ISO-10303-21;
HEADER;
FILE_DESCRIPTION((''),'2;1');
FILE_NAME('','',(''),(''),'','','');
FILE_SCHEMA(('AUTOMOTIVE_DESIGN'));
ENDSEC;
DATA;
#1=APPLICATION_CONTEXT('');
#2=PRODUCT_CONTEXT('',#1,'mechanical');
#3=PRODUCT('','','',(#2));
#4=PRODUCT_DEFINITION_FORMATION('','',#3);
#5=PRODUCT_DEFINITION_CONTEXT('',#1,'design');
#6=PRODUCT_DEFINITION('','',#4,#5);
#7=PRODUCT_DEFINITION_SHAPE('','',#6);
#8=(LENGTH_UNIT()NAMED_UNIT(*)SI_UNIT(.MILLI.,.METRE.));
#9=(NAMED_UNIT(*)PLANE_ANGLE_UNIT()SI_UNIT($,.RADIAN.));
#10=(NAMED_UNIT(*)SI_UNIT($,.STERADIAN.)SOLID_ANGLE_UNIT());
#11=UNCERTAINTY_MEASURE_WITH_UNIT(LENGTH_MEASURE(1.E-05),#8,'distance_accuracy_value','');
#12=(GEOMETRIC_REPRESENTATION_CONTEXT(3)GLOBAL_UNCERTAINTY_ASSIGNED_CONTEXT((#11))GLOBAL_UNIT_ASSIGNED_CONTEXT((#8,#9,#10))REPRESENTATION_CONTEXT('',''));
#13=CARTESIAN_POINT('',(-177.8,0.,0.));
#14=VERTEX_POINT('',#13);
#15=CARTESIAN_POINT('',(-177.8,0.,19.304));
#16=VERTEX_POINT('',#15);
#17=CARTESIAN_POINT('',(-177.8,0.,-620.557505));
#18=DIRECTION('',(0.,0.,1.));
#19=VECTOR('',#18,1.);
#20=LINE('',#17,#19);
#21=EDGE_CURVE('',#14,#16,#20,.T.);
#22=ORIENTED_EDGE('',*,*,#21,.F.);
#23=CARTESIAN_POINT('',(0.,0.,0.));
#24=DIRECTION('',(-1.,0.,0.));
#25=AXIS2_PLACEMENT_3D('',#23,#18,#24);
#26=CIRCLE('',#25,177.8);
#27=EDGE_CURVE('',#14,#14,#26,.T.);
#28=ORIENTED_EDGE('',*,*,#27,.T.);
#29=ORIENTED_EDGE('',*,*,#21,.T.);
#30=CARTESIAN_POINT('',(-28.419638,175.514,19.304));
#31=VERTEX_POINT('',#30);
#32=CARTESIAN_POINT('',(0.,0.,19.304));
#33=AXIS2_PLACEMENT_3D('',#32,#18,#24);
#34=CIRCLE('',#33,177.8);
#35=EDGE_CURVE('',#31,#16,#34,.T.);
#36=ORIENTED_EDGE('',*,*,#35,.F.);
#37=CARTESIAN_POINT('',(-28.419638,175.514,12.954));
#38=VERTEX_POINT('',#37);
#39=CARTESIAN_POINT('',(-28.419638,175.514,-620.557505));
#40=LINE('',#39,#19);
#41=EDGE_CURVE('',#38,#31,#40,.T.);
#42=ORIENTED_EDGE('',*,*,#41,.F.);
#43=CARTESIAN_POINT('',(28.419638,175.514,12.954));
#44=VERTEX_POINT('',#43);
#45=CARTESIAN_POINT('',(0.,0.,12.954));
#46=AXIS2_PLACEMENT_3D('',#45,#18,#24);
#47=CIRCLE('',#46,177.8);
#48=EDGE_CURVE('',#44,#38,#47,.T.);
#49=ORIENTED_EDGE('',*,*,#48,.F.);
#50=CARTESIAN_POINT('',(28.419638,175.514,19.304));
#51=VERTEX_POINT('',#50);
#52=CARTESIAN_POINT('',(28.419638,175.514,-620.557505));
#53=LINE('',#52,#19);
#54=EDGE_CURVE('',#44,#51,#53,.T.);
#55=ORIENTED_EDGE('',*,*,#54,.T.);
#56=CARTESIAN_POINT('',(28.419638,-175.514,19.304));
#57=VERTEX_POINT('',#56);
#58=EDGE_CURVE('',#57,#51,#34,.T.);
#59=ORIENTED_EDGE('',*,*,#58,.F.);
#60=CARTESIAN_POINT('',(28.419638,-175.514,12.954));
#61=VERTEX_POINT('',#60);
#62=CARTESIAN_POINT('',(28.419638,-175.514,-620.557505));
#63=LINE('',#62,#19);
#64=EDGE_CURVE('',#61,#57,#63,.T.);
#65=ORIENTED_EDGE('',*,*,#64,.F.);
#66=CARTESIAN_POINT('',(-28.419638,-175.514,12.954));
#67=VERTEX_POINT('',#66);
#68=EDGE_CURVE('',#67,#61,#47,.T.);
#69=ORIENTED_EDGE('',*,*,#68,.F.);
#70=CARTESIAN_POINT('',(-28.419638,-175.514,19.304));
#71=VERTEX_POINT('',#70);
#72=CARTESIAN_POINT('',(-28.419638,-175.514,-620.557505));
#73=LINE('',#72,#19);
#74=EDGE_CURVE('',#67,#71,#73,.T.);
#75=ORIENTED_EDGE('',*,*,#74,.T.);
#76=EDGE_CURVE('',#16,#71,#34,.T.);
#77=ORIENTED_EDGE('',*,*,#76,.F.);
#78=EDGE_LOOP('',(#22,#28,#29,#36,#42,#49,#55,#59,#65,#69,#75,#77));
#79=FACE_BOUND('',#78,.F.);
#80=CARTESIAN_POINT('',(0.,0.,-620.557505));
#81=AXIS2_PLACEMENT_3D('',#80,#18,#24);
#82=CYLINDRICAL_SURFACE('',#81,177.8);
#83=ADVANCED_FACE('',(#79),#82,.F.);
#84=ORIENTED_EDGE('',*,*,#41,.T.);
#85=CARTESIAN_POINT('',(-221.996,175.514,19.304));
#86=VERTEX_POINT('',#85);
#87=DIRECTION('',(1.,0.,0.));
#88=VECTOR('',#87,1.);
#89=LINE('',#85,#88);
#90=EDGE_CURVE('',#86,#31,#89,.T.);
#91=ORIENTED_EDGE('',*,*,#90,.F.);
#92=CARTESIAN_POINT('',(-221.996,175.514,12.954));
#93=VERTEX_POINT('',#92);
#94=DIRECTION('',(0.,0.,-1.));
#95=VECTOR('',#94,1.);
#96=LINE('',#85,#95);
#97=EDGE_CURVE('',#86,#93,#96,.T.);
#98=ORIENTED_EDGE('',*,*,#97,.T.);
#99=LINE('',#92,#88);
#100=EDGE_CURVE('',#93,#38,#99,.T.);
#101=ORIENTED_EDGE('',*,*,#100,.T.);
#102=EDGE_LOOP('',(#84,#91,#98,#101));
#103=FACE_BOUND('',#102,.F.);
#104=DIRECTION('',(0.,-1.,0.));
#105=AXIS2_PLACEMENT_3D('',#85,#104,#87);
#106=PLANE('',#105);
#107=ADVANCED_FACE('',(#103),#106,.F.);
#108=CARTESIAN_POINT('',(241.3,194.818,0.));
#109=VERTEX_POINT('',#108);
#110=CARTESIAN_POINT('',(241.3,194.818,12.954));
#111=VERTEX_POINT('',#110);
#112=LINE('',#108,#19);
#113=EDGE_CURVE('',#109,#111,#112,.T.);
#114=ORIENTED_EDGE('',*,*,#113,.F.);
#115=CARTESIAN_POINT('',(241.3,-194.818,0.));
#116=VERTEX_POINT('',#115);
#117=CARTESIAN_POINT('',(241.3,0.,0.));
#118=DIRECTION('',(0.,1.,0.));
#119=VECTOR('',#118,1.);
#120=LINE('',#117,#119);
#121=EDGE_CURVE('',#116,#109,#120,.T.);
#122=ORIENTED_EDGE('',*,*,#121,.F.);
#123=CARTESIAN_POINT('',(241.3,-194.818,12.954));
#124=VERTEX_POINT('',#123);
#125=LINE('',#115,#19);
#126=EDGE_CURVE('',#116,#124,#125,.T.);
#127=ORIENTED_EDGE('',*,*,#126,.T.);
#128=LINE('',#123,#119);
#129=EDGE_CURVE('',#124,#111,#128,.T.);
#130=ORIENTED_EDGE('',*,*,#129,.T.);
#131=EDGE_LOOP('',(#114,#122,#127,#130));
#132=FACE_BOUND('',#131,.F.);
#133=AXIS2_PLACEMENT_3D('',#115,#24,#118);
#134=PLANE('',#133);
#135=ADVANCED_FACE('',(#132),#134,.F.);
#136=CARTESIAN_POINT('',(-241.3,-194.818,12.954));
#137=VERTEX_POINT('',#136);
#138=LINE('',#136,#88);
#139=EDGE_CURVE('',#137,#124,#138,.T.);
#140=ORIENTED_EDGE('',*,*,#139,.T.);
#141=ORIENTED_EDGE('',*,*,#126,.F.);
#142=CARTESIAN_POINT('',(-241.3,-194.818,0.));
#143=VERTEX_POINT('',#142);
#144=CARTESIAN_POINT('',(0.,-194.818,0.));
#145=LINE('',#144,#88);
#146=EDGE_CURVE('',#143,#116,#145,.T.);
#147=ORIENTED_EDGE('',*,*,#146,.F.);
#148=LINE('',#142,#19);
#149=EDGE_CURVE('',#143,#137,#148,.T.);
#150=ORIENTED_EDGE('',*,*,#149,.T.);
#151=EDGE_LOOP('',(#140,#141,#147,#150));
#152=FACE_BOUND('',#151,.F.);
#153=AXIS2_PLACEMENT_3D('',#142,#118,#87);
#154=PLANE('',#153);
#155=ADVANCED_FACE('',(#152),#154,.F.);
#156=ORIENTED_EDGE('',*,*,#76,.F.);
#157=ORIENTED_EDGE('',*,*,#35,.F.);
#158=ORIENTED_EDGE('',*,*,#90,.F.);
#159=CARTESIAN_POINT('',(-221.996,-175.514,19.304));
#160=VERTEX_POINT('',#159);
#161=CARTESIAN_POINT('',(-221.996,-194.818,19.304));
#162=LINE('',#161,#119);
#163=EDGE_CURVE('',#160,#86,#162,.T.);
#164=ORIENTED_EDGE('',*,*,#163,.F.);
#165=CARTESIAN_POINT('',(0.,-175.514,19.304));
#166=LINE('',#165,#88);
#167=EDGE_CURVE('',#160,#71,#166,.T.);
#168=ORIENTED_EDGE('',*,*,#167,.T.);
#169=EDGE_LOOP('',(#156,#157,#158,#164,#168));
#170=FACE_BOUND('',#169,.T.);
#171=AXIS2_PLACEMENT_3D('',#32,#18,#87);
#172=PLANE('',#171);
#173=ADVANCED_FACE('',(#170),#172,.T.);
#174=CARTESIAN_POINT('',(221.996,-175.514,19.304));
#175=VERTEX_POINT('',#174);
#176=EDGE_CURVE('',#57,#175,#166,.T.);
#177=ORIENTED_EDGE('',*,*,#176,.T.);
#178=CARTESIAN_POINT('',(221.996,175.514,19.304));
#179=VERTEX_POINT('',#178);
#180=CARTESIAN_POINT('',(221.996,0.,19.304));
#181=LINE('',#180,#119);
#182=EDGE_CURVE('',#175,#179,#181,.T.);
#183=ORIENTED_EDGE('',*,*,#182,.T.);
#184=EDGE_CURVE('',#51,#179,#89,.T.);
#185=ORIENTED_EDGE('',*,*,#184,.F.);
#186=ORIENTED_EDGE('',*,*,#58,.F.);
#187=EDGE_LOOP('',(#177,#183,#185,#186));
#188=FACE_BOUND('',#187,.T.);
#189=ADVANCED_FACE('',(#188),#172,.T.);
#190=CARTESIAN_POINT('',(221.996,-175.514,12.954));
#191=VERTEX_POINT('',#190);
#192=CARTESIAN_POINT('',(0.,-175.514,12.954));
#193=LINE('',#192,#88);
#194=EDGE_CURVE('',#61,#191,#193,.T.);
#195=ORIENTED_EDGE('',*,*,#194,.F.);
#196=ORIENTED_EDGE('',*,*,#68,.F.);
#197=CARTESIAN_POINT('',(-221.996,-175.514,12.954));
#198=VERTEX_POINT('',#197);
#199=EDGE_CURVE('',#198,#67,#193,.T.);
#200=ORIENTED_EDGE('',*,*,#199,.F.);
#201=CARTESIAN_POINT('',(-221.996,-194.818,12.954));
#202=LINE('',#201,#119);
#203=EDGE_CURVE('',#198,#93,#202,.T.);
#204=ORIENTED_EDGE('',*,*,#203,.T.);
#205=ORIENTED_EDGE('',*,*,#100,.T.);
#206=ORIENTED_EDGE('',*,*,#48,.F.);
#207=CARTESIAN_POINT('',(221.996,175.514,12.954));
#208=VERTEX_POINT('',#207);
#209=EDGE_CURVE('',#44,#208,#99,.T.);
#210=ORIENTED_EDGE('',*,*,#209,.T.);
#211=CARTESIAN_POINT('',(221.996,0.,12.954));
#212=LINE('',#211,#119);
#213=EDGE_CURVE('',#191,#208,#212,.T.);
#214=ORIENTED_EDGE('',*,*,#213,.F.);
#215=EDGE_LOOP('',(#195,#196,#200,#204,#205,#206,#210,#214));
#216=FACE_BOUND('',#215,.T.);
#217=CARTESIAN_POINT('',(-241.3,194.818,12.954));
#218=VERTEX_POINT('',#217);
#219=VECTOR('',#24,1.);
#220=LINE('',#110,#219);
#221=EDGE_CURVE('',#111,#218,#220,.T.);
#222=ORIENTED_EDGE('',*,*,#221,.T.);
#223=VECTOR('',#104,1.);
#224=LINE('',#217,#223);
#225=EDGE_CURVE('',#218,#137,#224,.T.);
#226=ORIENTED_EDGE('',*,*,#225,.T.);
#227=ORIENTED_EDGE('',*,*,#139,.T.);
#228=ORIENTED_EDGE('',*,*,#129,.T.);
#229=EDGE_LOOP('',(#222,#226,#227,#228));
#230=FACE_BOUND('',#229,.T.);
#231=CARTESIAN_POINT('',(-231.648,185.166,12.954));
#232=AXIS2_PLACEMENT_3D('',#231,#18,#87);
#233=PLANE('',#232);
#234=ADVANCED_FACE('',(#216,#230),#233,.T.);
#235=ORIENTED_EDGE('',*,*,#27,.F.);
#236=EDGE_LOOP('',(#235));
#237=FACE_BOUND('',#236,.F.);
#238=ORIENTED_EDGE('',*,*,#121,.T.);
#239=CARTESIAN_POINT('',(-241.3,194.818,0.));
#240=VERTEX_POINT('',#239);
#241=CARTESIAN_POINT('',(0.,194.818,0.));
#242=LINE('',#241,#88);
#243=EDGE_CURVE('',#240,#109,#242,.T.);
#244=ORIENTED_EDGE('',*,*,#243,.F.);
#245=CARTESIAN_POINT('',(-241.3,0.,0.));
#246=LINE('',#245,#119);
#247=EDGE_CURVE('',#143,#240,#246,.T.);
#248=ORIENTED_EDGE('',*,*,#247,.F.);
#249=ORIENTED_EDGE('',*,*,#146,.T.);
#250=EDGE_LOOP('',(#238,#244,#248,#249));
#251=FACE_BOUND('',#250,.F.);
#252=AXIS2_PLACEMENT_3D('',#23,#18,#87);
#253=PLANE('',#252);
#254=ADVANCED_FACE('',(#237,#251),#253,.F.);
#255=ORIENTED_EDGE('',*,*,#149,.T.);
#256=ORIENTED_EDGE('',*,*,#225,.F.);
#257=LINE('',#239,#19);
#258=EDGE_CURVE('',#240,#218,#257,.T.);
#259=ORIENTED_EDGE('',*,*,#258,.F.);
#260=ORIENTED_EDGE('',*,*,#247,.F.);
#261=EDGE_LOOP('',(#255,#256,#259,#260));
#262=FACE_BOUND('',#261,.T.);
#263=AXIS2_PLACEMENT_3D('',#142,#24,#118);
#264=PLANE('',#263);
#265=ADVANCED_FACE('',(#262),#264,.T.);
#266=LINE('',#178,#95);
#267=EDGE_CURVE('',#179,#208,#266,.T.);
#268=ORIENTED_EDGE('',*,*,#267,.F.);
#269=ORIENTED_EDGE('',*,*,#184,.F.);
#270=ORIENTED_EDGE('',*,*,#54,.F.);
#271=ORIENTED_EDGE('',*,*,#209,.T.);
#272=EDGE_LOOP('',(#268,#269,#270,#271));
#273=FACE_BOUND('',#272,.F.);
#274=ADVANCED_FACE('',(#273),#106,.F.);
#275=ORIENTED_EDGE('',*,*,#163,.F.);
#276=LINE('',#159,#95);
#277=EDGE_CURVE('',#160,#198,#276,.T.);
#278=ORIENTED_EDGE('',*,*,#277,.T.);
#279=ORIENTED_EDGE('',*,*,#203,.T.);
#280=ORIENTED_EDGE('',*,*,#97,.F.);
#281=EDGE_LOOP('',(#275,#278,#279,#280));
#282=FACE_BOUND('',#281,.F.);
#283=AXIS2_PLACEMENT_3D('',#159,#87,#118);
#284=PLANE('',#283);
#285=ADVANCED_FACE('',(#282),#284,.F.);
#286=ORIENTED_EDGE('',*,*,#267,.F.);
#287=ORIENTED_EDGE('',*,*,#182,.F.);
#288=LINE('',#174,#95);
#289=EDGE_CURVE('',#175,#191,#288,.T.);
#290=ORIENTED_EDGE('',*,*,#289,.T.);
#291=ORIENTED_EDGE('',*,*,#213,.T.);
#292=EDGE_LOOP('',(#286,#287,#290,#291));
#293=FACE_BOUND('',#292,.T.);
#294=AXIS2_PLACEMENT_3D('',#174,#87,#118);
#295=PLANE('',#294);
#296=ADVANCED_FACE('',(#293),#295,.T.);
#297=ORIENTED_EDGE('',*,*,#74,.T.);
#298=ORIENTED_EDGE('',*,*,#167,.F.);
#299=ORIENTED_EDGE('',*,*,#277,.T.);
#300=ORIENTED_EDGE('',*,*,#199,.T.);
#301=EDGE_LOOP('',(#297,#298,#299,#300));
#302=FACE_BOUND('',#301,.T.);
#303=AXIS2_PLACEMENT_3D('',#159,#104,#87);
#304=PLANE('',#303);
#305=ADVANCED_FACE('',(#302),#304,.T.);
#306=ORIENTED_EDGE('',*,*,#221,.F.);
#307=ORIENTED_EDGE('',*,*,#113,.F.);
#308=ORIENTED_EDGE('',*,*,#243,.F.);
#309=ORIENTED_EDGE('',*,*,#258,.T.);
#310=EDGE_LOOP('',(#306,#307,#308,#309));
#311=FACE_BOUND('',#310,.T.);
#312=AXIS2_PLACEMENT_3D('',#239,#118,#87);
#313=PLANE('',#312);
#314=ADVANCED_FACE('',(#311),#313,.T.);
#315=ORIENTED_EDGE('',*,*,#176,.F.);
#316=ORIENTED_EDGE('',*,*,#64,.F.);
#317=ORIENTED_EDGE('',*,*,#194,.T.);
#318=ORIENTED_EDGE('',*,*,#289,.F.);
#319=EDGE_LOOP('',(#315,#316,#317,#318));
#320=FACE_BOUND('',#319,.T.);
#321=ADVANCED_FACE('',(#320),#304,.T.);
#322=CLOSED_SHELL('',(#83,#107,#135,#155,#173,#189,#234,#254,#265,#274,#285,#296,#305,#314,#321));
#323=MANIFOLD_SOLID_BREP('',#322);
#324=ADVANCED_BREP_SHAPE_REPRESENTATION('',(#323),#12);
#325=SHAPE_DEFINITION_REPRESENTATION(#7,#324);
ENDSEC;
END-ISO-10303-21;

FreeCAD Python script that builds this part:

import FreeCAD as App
import Part
import Sketcher
Q = App.Units.Quantity

doc = App.newDocument("Part")
body = doc.addObject("PartDesign::Body", "Body")

sketch1 = body.newObject("Sketcher::SketchObject", "Sketch")
sketch1.AttachmentSupport = (doc.getObject("XY_Plane"), [""])
sketch1.MapMode = "FlatFace"
sketch1.addGeometry(Part.LineSegment(App.Vector(-241, 195, 0), App.Vector(-241, -195, 0)), False)
sketch1.addGeometry(Part.LineSegment(App.Vector(-241, -195, 0), App.Vector(241, -195, 0)), False)
sketch1.addGeometry(Part.LineSegment(App.Vector(241, -195, 0), App.Vector(241, 195, 0)), False)
sketch1.addGeometry(Part.LineSegment(App.Vector(241, 195, 0), App.Vector(-241, 195, 0)), False)
sketch1.addConstraint(Sketcher.Constraint("Coincident", 0, 2, 1, 1))
sketch1.addConstraint(Sketcher.Constraint("Coincident", 1, 2, 2, 1))
sketch1.addConstraint(Sketcher.Constraint("Coincident", 2, 2, 3, 1))
sketch1.addConstraint(Sketcher.Constraint("Coincident", 3, 2, 0, 1))
sketch1.addConstraint(Sketcher.Constraint("Vertical", 0))
sketch1.addConstraint(Sketcher.Constraint("Horizontal", 1))
sketch1.addConstraint(Sketcher.Constraint("Vertical", 2))
sketch1.addConstraint(Sketcher.Constraint("Horizontal", 3))
sketch1.addConstraint(Sketcher.Constraint("Symmetric", 0, 2, 2, 2, -1, 1))
sketch1.addConstraint(Sketcher.Constraint("DistanceX", 1, 1, 1, 2, Q("19 in")))
sketch1.addConstraint(Sketcher.Constraint("DistanceY", 0, 2, 0, 1, Q("15.34 in")))
pad1 = body.newObject("PartDesign::Pad", "Pad")
pad1.Profile = sketch1
pad1.Length = Q("0.76 in")

sketch2 = body.newObject("Sketcher::SketchObject", "Sketch001")
sketch2.AttachmentSupport = (doc.getObject("XY_Plane"), [""])
sketch2.MapMode = "FlatFace"
sketch2.addGeometry(Part.Circle(App.Vector(0, 0, 0), App.Vector(0, 0, 1), 178), False)
sketch2.addConstraint(Sketcher.Constraint("Coincident", 0, 3, -1, 1))
sketch2.addConstraint(Sketcher.Constraint("Diameter", 0, Q("14 in")))
doc.recompute()
hole = body.newObject("PartDesign::Hole", "Hole")
hole.Profile = sketch2
hole.ThreadType = "None"
hole.Diameter = Q("14 in")
hole.DepthType = "ThroughAll"
hole.Reversed = True

sketch3 = body.newObject("Sketcher::SketchObject", "Sketch002")
sketch3.AttachmentSupport = (doc.getObject("XY_Plane"), [""])
sketch3.MapMode = "FlatFace"
sketch3.AttachmentOffset = App.Placement(App.Vector(0, 0, 0.76 * 25.4), App.Rotation())
sketch3.addGeometry(Part.LineSegment(App.Vector(-241, -195, 0), App.Vector(241, -195, 0)), False)
sketch3.addGeometry(Part.LineSegment(App.Vector(241, -195, 0), App.Vector(241, 195, 0)), False)
sketch3.addGeometry(Part.LineSegment(App.Vector(241, 195, 0), App.Vector(-241, 195, 0)), False)
sketch3.addGeometry(Part.LineSegment(App.Vector(-241, 195, 0), App.Vector(-241, -195, 0)), False)
sketch3.addGeometry(Part.LineSegment(App.Vector(222, -176, 0), App.Vector(-222, -176, 0)), False)
sketch3.addGeometry(Part.LineSegment(App.Vector(-222, -176, 0), App.Vector(-222, 176, 0)), False)
sketch3.addGeometry(Part.LineSegment(App.Vector(-222, 176, 0), App.Vector(222, 176, 0)), False)
sketch3.addGeometry(Part.LineSegment(App.Vector(222, 176, 0), App.Vector(222, -176, 0)), False)
sketch3.addConstraint(Sketcher.Constraint("Coincident", 0, 2, 1, 1))
sketch3.addConstraint(Sketcher.Constraint("Coincident", 1, 2, 2, 1))
sketch3.addConstraint(Sketcher.Constraint("Coincident", 2, 2, 3, 1))
sketch3.addConstraint(Sketcher.Constraint("Coincident", 3, 2, 0, 1))
sketch3.addConstraint(Sketcher.Constraint("Coincident", 4, 2, 5, 1))
sketch3.addConstraint(Sketcher.Constraint("Coincident", 5, 2, 6, 1))
sketch3.addConstraint(Sketcher.Constraint("Coincident", 6, 2, 7, 1))
sketch3.addConstraint(Sketcher.Constraint("Coincident", 7, 2, 4, 1))
sketch3.addConstraint(Sketcher.Constraint("Horizontal", 0))
sketch3.addConstraint(Sketcher.Constraint("Vertical", 1))
sketch3.addConstraint(Sketcher.Constraint("Horizontal", 2))
sketch3.addConstraint(Sketcher.Constraint("Vertical", 3))
sketch3.addConstraint(Sketcher.Constraint("Horizontal", 4))
sketch3.addConstraint(Sketcher.Constraint("Vertical", 5))
sketch3.addConstraint(Sketcher.Constraint("Horizontal", 6))
sketch3.addConstraint(Sketcher.Constraint("Vertical", 7))
sketch3.addConstraint(Sketcher.Constraint("Symmetric", 0, 2, 2, 2, -1, 1))
sketch3.addConstraint(Sketcher.Constraint("Symmetric", 4, 2, 6, 2, -1, 1))
sketch3.addConstraint(Sketcher.Constraint("DistanceX", 0, 1, 0, 2, Q("19 in")))
sketch3.addConstraint(Sketcher.Constraint("DistanceX", 4, 2, 4, 1, Q("17.48 in")))
sketch3.addConstraint(Sketcher.Constraint("DistanceY", 1, 1, 1, 2, Q("15.34 in")))
sketch3.addConstraint(Sketcher.Constraint("DistanceY", 5, 1, 5, 2, Q("13.82 in")))
pocket1 = body.newObject("PartDesign::Pocket", "Pocket")
pocket1.Profile = sketch3
pocket1.Length = Q("0.25 in")

doc.recompute()
